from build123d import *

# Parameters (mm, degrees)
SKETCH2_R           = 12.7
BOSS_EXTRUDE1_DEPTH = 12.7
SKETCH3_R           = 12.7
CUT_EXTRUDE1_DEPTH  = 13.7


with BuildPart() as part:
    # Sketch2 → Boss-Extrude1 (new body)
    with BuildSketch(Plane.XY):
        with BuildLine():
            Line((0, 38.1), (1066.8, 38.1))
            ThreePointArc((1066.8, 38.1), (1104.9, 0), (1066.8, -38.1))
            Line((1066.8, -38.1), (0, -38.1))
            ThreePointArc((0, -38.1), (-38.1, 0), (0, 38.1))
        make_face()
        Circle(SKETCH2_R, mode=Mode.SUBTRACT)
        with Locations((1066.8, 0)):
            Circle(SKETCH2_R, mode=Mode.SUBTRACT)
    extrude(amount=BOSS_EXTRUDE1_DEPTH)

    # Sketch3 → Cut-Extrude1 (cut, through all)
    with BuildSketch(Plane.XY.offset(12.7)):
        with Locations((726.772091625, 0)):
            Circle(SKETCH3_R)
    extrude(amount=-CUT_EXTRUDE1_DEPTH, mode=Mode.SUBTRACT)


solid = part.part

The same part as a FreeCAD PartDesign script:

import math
import FreeCAD as App
import Part
import Sketcher

V = App.Vector
Q = App.Units.Quantity

doc = App.newDocument("Part")
params = doc.addObject("Spreadsheet::Sheet", "Params")
for row, (alias, value) in enumerate([
    ("sketch1_diameter", "1 in"),
    ("sketch1_radius", "1.5 in"),
    ("sketch1_width", "42 in"),
    ("pad1_length", "0.5 in"),
    ("sketch2_diameter", "1 in"),
], start=1):
    params.set(f"A{row}", alias)
    params.set(f"B{row}", "=" + value)
    params.setAlias(f"B{row}", alias)

body = doc.addObject("PartDesign::Body", "Body")

sketch1 = body.newObject("Sketcher::SketchObject", "Sketch")
sketch1.AttachmentSupport = (doc.getObject("XY_Plane"), [""])
sketch1.MapMode = "FlatFace"
sketch1.addGeometry(Part.LineSegment(V(1067, 38, 0), V(0, 38, 0)), False)
sketch1.addGeometry(Part.ArcOfCircle(Part.Circle(V(0, 0, 0), V(0, 0, 1), 38), math.radians(90), math.radians(270)), False)
sketch1.addGeometry(Part.LineSegment(V(0, -38, 0), V(1067, -38, 0)), False)
sketch1.addGeometry(Part.ArcOfCircle(Part.Circle(V(1067, 0, 0), V(0, 0, 1), 38), math.radians(-90), math.radians(90)), False)
sketch1.addGeometry(Part.Circle(V(1067, 0, 0), V(0, 0, 1), 13), False)
sketch1.addGeometry(Part.Circle(V(0, 0, 0), V(0, 0, 1), 13), False)
sketch1.addConstraint(Sketcher.Constraint("Tangent", 0, 2, 1, 1))
sketch1.addConstraint(Sketcher.Constraint("Tangent", 1, 2, 2, 1))
sketch1.addConstraint(Sketcher.Constraint("Tangent", 2, 2, 3, 1))
sketch1.addConstraint(Sketcher.Constraint("Tangent", 3, 2, 0, 1))
sketch1.addConstraint(Sketcher.Constraint("Horizontal", 0))
sketch1.addConstraint(Sketcher.Constraint("Horizontal", 2))
sketch1.addConstraint(Sketcher.Constraint("Coincident", 1, 3, -1, 1))
sketch1.addConstraint(Sketcher.Constraint("Coincident", 5, 3, -1, 1))
sketch1.addConstraint(Sketcher.Constraint("Coincident", 4, 3, 3, 3))
sketch1.addConstraint(Sketcher.Constraint("Equal", 4, 5))
sketch1.addConstraint(Sketcher.Constraint("Diameter", 4, Q("1 in")))
sketch1.addConstraint(Sketcher.Constraint("Radius", 1, Q("1.5 in")))
sketch1.addConstraint(Sketcher.Constraint("DistanceX", 0, 2, 0, 1, Q("42 in")))
sketch1.setExpression("Constraints[10]", "Params.sketch1_diameter")
sketch1.setExpression("Constraints[11]", "Params.sketch1_radius")
sketch1.setExpression("Constraints[12]", "Params.sketch1_width")
pad1 = body.newObject("PartDesign::Pad", "Pad")
pad1.Profile = sketch1
pad1.setExpression("Length", "Params.pad1_length")

sketch2 = body.newObject("Sketcher::SketchObject", "Sketch001")
sketch2.AttachmentSupport = (doc.getObject("XY_Plane"), [""])
sketch2.MapMode = "FlatFace"
sketch2.AttachmentOffset = App.Placement(V(0, 0, 0.5 * 25.4), App.Rotation())
sketch2.addGeometry(Part.Circle(V(727, 0, 0), V(0, 0, 1), 13), False)
sketch2.addConstraint(Sketcher.Constraint("PointOnObject", 0, 3, -1))
sketch2.addConstraint(Sketcher.Constraint("Diameter", 0, Q("1 in")))
sketch2.addConstraint(Sketcher.Constraint("DistanceX", -1, 1, 0, 3, 726.772092))
sketch2.setExpression("Constraints[1]", "Params.sketch2_diameter")
pocket1 = body.newObject("PartDesign::Pocket", "Pocket")
pocket1.Profile = sketch2
pocket1.Type = "ThroughAll"

doc.recompute()
